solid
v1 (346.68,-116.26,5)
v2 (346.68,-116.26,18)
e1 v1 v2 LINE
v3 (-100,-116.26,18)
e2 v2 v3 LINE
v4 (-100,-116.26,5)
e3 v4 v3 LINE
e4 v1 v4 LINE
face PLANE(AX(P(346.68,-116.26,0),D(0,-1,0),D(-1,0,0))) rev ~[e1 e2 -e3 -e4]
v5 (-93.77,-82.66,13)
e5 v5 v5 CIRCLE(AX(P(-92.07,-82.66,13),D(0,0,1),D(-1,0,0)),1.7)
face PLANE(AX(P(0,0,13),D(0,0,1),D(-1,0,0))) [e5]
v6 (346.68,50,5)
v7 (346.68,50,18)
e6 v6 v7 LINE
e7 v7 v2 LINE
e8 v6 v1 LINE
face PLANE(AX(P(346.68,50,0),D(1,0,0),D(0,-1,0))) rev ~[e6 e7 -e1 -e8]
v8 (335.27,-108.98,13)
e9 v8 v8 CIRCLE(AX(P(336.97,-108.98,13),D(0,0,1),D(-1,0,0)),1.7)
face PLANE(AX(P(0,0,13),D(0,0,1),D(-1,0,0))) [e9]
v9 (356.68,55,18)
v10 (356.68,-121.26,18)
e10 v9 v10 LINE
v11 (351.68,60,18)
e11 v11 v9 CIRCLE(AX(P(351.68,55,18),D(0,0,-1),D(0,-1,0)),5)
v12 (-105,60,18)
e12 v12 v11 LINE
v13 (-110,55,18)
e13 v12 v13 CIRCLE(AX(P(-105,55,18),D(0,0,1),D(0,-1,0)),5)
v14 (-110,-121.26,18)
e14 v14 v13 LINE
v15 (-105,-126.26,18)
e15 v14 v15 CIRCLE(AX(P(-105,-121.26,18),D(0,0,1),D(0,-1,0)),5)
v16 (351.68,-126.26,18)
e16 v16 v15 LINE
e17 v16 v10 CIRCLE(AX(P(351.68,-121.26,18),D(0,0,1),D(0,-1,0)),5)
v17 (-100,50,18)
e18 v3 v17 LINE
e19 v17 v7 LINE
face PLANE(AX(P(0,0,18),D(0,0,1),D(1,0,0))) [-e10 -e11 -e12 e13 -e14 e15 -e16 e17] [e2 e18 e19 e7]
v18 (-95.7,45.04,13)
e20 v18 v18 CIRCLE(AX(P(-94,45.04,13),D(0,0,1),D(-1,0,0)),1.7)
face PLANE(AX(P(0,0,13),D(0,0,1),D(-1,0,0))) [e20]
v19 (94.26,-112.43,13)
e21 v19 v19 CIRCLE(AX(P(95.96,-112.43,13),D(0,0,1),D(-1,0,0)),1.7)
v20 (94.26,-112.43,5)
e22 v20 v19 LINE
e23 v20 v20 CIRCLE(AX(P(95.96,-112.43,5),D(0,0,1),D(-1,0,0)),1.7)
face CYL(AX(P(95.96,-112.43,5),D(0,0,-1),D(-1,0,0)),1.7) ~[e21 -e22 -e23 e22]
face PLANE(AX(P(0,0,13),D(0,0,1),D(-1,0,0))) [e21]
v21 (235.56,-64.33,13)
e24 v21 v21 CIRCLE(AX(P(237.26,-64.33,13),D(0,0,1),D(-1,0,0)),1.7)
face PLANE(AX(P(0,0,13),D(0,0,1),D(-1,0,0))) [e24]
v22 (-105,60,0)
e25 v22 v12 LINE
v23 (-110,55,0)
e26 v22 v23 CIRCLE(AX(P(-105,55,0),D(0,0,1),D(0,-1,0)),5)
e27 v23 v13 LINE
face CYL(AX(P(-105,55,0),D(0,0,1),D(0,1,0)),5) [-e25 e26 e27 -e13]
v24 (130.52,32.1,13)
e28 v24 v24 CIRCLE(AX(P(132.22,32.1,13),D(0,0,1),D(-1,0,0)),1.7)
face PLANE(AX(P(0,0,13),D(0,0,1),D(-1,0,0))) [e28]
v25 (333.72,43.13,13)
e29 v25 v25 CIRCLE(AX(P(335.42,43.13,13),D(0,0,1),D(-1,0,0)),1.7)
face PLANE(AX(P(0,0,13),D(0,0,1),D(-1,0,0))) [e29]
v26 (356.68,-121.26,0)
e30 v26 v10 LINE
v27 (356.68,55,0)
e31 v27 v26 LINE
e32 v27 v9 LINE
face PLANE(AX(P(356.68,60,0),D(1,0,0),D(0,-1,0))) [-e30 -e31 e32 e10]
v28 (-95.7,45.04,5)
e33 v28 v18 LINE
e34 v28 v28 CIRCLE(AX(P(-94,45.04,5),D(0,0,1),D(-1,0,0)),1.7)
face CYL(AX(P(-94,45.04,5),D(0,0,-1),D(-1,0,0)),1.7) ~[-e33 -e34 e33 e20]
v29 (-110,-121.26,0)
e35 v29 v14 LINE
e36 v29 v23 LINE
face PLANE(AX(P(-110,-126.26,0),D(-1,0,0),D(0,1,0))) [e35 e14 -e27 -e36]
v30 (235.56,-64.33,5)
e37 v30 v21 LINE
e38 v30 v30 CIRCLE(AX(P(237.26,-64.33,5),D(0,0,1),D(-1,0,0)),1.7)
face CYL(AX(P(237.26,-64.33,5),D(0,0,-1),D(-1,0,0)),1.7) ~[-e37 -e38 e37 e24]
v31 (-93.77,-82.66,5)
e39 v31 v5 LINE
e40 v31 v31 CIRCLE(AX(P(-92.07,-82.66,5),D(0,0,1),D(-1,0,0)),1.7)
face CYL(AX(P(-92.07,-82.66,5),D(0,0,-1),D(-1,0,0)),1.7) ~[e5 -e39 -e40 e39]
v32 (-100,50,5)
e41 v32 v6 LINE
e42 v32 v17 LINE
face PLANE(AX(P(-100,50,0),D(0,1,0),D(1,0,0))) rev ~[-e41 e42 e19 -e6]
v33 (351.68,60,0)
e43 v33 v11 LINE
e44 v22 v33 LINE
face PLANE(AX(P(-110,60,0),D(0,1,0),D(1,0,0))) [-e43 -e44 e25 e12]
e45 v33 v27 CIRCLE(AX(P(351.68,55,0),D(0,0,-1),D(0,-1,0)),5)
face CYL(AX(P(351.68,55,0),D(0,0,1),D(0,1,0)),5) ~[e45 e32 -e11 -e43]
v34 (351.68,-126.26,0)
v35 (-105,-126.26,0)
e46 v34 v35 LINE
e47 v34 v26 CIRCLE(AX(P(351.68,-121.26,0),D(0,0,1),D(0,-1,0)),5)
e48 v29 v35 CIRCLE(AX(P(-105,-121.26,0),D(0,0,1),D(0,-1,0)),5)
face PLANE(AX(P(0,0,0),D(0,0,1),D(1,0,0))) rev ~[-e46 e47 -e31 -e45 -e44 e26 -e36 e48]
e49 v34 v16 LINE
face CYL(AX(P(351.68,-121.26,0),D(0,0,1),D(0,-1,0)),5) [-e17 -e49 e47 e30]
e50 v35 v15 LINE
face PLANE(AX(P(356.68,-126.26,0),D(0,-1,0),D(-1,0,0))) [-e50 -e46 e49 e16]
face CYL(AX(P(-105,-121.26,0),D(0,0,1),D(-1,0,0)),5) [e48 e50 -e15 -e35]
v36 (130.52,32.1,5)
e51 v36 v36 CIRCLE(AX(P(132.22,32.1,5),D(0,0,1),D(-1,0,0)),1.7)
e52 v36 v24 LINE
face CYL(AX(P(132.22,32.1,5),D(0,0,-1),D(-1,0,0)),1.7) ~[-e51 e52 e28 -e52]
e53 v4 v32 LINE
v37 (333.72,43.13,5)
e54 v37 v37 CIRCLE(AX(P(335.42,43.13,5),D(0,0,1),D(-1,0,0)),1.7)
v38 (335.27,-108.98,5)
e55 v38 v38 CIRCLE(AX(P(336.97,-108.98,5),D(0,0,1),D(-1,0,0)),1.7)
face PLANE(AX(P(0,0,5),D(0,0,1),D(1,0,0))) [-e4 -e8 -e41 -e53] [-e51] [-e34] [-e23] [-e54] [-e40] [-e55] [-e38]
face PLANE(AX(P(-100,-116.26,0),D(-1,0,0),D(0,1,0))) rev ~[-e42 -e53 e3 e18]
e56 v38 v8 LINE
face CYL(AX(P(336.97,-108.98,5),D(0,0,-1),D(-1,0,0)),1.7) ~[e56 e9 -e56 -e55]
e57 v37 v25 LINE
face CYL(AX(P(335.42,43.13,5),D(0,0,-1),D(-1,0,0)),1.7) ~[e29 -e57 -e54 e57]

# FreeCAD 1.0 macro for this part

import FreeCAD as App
import Part
import Sketcher

V = App.Vector


def edges_at(feature, points):
    """Names of the edges that pass closest to the given points."""
    edges = feature.Shape.Edges
    near = lambda p: min(range(len(edges)), key=lambda i: edges[i].distToShape(Part.Vertex(*p))[0])
    return sorted({f"Edge{near(p) + 1}" for p in points})


def add_polygon(sketch, points):
    """Adds a closed chain of lines whose ends are joined by coincident constraints."""
    first, n = sketch.GeometryCount, len(points)
    for a, b in zip(points, points[1:] + points[:1]):
        sketch.addGeometry(Part.LineSegment(App.Vector(*a, 0), App.Vector(*b, 0)), False)
    for i in range(n):
        sketch.addConstraint(Sketcher.Constraint("Coincident", first + i, 2, first + (i + 1) % n, 1))

doc = App.newDocument("Part")
body = doc.addObject("PartDesign::Body", "Body")

# Sketch on XY plane
sketch1 = body.newObject("Sketcher::SketchObject", "Sketch")
sketch1.AttachmentSupport = (doc.getObject("XY_Plane"), [""])
sketch1.MapMode = "FlatFace"
add_polygon(sketch1, [(346.68, 50), (-100, 50), (-100, -116.26), (346.68, -116.26)])  # lines 0-3
sketch1.addConstraint(Sketcher.Constraint("Horizontal", 0))
sketch1.addConstraint(Sketcher.Constraint("Vertical", 1))
sketch1.addConstraint(Sketcher.Constraint("Horizontal", 2))
sketch1.addConstraint(Sketcher.Constraint("Vertical", 3))
sketch1.addConstraint(Sketcher.Constraint("DistanceX", 0, 2, 0, 1, 446.68))
sketch1.addConstraint(Sketcher.Constraint("DistanceY", 1, 2, 1, 1, 166.26))
sketch1.addConstraint(Sketcher.Constraint("DistanceX", 0, 2, -1, 1, 100.0))
sketch1.addConstraint(Sketcher.Constraint("DistanceY", -1, 1, 0, 2, 50.0))
pad1 = body.newObject("PartDesign::Pad", "Pad")
pad1.Profile = sketch1
pad1.Length = 5

# Sketch on XY plane
sketch2 = body.newObject("Sketcher::SketchObject", "Sketch001")
sketch2.AttachmentSupport = (doc.getObject("XY_Plane"), [""])
sketch2.MapMode = "FlatFace"
add_polygon(sketch2, [(356.68, 60), (-110, 60), (-110, -126.26), (356.68, -126.26)])  # lines 0-3
add_polygon(sketch2, [(-100, -116.26), (-100, 50), (346.68, 50), (346.68, -116.26)])  # lines 4-7
sketch2.addConstraint(Sketcher.Constraint("Horizontal", 0))
sketch2.addConstraint(Sketcher.Constraint("Vertical", 1))
sketch2.addConstraint(Sketcher.Constraint("Horizontal", 2))
sketch2.addConstraint(Sketcher.Constraint("Vertical", 3))
sketch2.addConstraint(Sketcher.Constraint("Vertical", 4))
sketch2.addConstraint(Sketcher.Constraint("Horizontal", 5))
sketch2.addConstraint(Sketcher.Constraint("Vertical", 6))
sketch2.addConstraint(Sketcher.Constraint("Horizontal", 7))
sketch2.addConstraint(Sketcher.Constraint("DistanceX", 0, 2, 4, 2, 10.0))
sketch2.addConstraint(Sketcher.Constraint("DistanceY", 4, 2, 0, 2, 10.0))
sketch2.addConstraint(Sketcher.Constraint("DistanceX", 5, 2, 3, 2, 10.0))
sketch2.addConstraint(Sketcher.Constraint("DistanceY", 2, 2, 6, 2, 10.0))
sketch2.addConstraint(Sketcher.Constraint("DistanceX", 0, 2, 0, 1, 466.68))
sketch2.addConstraint(Sketcher.Constraint("DistanceY", 1, 2, 1, 1, 186.26))
sketch2.addConstraint(Sketcher.Constraint("DistanceX", 0, 2, -1, 1, 110.0))
sketch2.addConstraint(Sketcher.Constraint("DistanceY", -1, 1, 0, 2, 60.0))
pad2 = body.newObject("PartDesign::Pad", "Pad001")
pad2.Profile = sketch2
pad2.Length = 18

# Sketch on XY plane
sketch3 = body.newObject("Sketcher::SketchObject", "Sketch002")
sketch3.AttachmentSupport = (doc.getObject("XY_Plane"), [""])
sketch3.MapMode = "FlatFace"
sketch3.AttachmentOffset = App.Placement(V(0, 0, 5), App.Rotation())
sketch3.addGeometry(Part.Circle(V(-94, 45.04, 0), V(0, 0, 1), 1.7), False)
sketch3.addGeometry(Part.Circle(V(132.22, 32.1, 0), V(0, 0, 1), 1.7), False)
sketch3.addGeometry(Part.Circle(V(-92.07, -82.66, 0), V(0, 0, 1), 1.7), False)
sketch3.addGeometry(Part.Circle(V(95.96, -112.43, 0), V(0, 0, 1), 1.7), False)
sketch3.addGeometry(Part.Circle(V(237.26, -64.33, 0), V(0, 0, 1), 1.7), False)
sketch3.addGeometry(Part.Circle(V(335.42, 43.13, 0), V(0, 0, 1), 1.7), False)
sketch3.addGeometry(Part.Circle(V(336.97, -108.98, 0), V(0, 0, 1), 1.7), False)
sketch3.addConstraint(Sketcher.Constraint("Equal", 0, 1))
sketch3.addConstraint(Sketcher.Constraint("Equal", 1, 2))
sketch3.addConstraint(Sketcher.Constraint("Equal", 2, 3))
sketch3.addConstraint(Sketcher.Constraint("Equal", 3, 4))
sketch3.addConstraint(Sketcher.Constraint("Equal", 4, 5))
sketch3.addConstraint(Sketcher.Constraint("Equal", 5, 6))
sketch3.addConstraint(Sketcher.Constraint("Diameter", 0, 3.4))
sketch3.addConstraint(Sketcher.Constraint("DistanceX", 0, 3, -1, 1, 94.0))
sketch3.addConstraint(Sketcher.Constraint("DistanceY", -1, 1, 1, 3, 32.1))
sketch3.addConstraint(Sketcher.Constraint("DistanceY", 2, 3, 0, 3, 127.7))
sketch3.addConstraint(Sketcher.Constraint("DistanceX", 3, 3, 4, 3, 141.3))
sketch3.addConstraint(Sketcher.Constraint("DistanceY", 3, 3, 4, 3, 48.1))
sketch3.addConstraint(Sketcher.Constraint("DistanceX", 1, 3, 5, 3, 203.2))
sketch3.addConstraint(Sketcher.Constraint("DistanceY", -1, 1, 0, 3, 45.04))
sketch3.addConstraint(Sketcher.Constraint("DistanceX", -1, 1, 1, 3, 132.22))
sketch3.addConstraint(Sketcher.Constraint("DistanceX", 2, 3, -1, 1, 92.07))
sketch3.addConstraint(Sketcher.Constraint("DistanceX", -1, 1, 3, 3, 95.96))
sketch3.addConstraint(Sketcher.Constraint("DistanceY", 3, 3, -1, 1, 112.43))
sketch3.addConstraint(Sketcher.Constraint("DistanceY", -1, 1, 5, 3, 43.13))
sketch3.addConstraint(Sketcher.Constraint("DistanceX", -1, 1, 6, 3, 336.97))
sketch3.addConstraint(Sketcher.Constraint("DistanceY", 6, 3, -1, 1, 108.98))
pad3 = body.newObject("PartDesign::Pad", "Pad002")
pad3.Profile = sketch3
pad3.Length = 8
doc.recompute()

fillet = body.newObject("PartDesign::Fillet", "Fillet")
fillet.Base = (pad3, edges_at(pad3, [
    (356.68, -126.26, 9),
    (356.68, 60, 9),
    (-110, 60, 9),
    (-110, -126.26, 9),
]))
fillet.Radius = 5

doc.recompute()
